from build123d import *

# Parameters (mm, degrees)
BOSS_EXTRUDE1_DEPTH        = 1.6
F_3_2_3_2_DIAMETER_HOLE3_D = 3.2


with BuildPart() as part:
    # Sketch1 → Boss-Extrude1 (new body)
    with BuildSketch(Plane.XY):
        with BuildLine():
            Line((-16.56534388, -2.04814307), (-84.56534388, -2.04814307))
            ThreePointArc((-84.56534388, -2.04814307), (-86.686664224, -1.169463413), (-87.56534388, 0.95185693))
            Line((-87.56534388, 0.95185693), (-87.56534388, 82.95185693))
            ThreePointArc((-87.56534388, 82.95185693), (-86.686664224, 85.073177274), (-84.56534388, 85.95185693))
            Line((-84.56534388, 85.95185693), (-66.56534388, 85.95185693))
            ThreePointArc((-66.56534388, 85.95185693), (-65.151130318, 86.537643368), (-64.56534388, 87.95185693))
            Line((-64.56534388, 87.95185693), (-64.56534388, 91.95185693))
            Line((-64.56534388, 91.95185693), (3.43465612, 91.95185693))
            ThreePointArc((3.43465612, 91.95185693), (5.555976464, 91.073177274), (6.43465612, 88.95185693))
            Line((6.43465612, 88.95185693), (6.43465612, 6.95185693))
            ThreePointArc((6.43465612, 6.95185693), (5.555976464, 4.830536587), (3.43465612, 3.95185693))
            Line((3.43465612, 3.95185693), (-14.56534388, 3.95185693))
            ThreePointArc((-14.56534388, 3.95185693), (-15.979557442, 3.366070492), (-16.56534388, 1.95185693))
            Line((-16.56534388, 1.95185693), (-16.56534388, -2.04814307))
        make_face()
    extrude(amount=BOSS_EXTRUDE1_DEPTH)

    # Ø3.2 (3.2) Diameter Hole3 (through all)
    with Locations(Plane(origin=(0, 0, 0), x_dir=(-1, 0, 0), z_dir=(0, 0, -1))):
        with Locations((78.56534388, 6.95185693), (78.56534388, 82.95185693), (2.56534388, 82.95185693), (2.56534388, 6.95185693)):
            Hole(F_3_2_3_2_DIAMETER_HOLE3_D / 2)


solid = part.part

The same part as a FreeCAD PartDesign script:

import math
import FreeCAD as App
import Part
import Sketcher
from FreeCAD import Vector
Q = App.Units.Quantity

doc = App.newDocument("Part")
params = doc.addObject("Spreadsheet::Sheet", "Params")
for row, (alias, value) in enumerate([
    ("sketch1_radius", "2 mm"),
    ("sketch1_radius2", "3 mm"),
    ("sketch1_width", "68 mm"),
    ("sketch1_width2", "18 mm"),
    ("sketch1_height", "4 mm"),
    ("pad1_length", "1.6 mm"),
    ("sketch2_diameter", "3.2 mm"),
    ("hole_diameter", "3.2 mm"),
], start=1):
    params.set(f"A{row}", alias)
    params.set(f"B{row}", "=" + value)
    params.setAlias(f"B{row}", alias)

body = doc.addObject("PartDesign::Body", "Body")

sketch1 = body.newObject("Sketcher::SketchObject", "Sketch")
sketch1.AttachmentSupport = (doc.getObject("XY_Plane"), [""])
sketch1.MapMode = "FlatFace"
sketch1.addGeometry([
    Part.LineSegment(Vector(-84.6, -2, 0), Vector(-16.6, -2, 0)),
    Part.LineSegment(Vector(-16.6, -2, 0), Vector(-16.6, 2, 0)),
    Part.ArcOfCircle(Part.Circle(Vector(-14.6, 2, 0), Vector(0, 0, 1), 2), math.radians(90), math.radians(180)),
    Part.LineSegment(Vector(-14.6, 4, 0), Vector(3.4, 4, 0)),
    Part.ArcOfCircle(Part.Circle(Vector(3.4, 7, 0), Vector(0, 0, 1), 3), math.radians(-90), math.radians(0)),
    Part.LineSegment(Vector(6.4, 7, 0), Vector(6.4, 89, 0)),
    Part.ArcOfCircle(Part.Circle(Vector(3.4, 89, 0), Vector(0, 0, 1), 3), math.radians(0), math.radians(90)),
    Part.LineSegment(Vector(3.4, 92, 0), Vector(-64.6, 92, 0)),
    Part.LineSegment(Vector(-64.6, 92, 0), Vector(-64.6, 88, 0)),
    Part.ArcOfCircle(Part.Circle(Vector(-66.6, 88, 0), Vector(0, 0, 1), 2), math.radians(-90), math.radians(0)),
    Part.LineSegment(Vector(-66.6, 86, 0), Vector(-84.6, 86, 0)),
    Part.ArcOfCircle(Part.Circle(Vector(-84.6, 83, 0), Vector(0, 0, 1), 3), math.radians(90), math.radians(180)),
    Part.LineSegment(Vector(-87.6, 83, 0), Vector(-87.6, 1, 0)),
    Part.ArcOfCircle(Part.Circle(Vector(-84.6, 1, 0), Vector(0, 0, 1), 3), math.radians(180), math.radians(270)),
], False)
sketch1.addConstraint([
    Sketcher.Constraint("Coincident", 0, 2, 1, 1),
    Sketcher.Constraint("Tangent", 1, 2, 2, 2),
    Sketcher.Constraint("Tangent", 2, 1, 3, 1),
    Sketcher.Constraint("Tangent", 3, 2, 4, 1),
    Sketcher.Constraint("Tangent", 4, 2, 5, 1),
    Sketcher.Constraint("Tangent", 5, 2, 6, 1),
    Sketcher.Constraint("Tangent", 6, 2, 7, 1),
    Sketcher.Constraint("Coincident", 7, 2, 8, 1),
    Sketcher.Constraint("Tangent", 8, 2, 9, 2),
    Sketcher.Constraint("Tangent", 9, 1, 10, 1),
    Sketcher.Constraint("Tangent", 10, 2, 11, 1),
    Sketcher.Constraint("Tangent", 11, 2, 12, 1),
    Sketcher.Constraint("Tangent", 12, 2, 13, 1),
    Sketcher.Constraint("Tangent", 13, 2, 0, 1),
    Sketcher.Constraint("Horizontal", 0),
    Sketcher.Constraint("Vertical", 1),
    Sketcher.Constraint("Horizontal", 3),
    Sketcher.Constraint("Vertical", 5),
    Sketcher.Constraint("Horizontal", 7),
    Sketcher.Constraint("Vertical", 8),
    Sketcher.Constraint("Horizontal", 10),
    Sketcher.Constraint("Vertical", 12),
    Sketcher.Constraint("Equal", 4, 6),
    Sketcher.Constraint("Equal", 2, 9),
    Sketcher.Constraint("Equal", 6, 11),
    Sketcher.Constraint("Equal", 11, 13),
    Sketcher.Constraint("Equal", 0, 7),
    Sketcher.Constraint("Equal", 1, 8),
    Sketcher.Constraint("Radius", 2, Q("2 mm")),
    Sketcher.Constraint("Radius", 4, Q("3 mm")),
    Sketcher.Constraint("DistanceX", 0, 1, 0, 2, Q("68 mm")),
    Sketcher.Constraint("DistanceX", 3, 1, 3, 2, Q("18 mm")),
    Sketcher.Constraint("DistanceY", 1, 1, 1, 2, Q("4 mm")),
    Sketcher.Constraint("DistanceY", 5, 1, 5, 2, Q("82 mm")),
    Sketcher.Constraint("DistanceX", 2, 3, -1, 1, Q("14.565344 mm")),
    Sketcher.Constraint("DistanceY", -1, 1, 2, 3, Q("1.951857 mm")),
])
sketch1.setExpression("Constraints[28]", "Params.sketch1_radius")
sketch1.setExpression("Constraints[29]", "Params.sketch1_radius2")
sketch1.setExpression("Constraints[30]", "Params.sketch1_width")
sketch1.setExpression("Constraints[31]", "Params.sketch1_width2")
sketch1.setExpression("Constraints[32]", "Params.sketch1_height")
pad1 = body.newObject("PartDesign::Pad", "Pad")
pad1.Profile = sketch1
pad1.setExpression("Length", "Params.pad1_length")

sketch2 = body.newObject("Sketcher::SketchObject", "Sketch001")
sketch2.AttachmentSupport = (doc.getObject("XY_Plane"), [""])
sketch2.MapMode = "FlatFace"
sketch2.addGeometry([
    Part.Circle(Vector(-78.6, 7, 0), Vector(0, 0, 1), 1.6),
    Part.Circle(Vector(-78.6, 83, 0), Vector(0, 0, 1), 1.6),
    Part.Circle(Vector(-2.6, 83, 0), Vector(0, 0, 1), 1.6),
    Part.Circle(Vector(-2.6, 7, 0), Vector(0, 0, 1), 1.6),
], False)
sketch2.addConstraint([
    Sketcher.Constraint("Equal", 0, 1),
    Sketcher.Constraint("Equal", 1, 2),
    Sketcher.Constraint("Equal", 2, 3),
    Sketcher.Constraint("Horizontal", 1, 3, 2, 3),
    Sketcher.Constraint("Horizontal", 0, 3, 3, 3),
    Sketcher.Constraint("Vertical", 0, 3, 1, 3),
    Sketcher.Constraint("Vertical", 2, 3, 3, 3),
    Sketcher.Constraint("Diameter", 0, Q("3.2 mm")),
    Sketcher.Constraint("DistanceY", 0, 3, 1, 3, Q("76 mm")),
    Sketcher.Constraint("DistanceX", 1, 3, 2, 3, Q("76 mm")),
    Sketcher.Constraint("DistanceX", 0, 3, -1, 1, Q("78.565344 mm")),
    Sketcher.Constraint("DistanceY", -1, 1, 0, 3, Q("6.951857 mm")),
])
sketch2.setExpression("Constraints[7]", "Params.sketch2_diameter")
doc.recompute()
hole = body.newObject("PartDesign::Hole", "Hole")
hole.Profile = sketch2
hole.ThreadType = "None"
hole.setExpression("Diameter", "Params.hole_diameter")
hole.DepthType = "ThroughAll"
hole.Reversed = True

doc.recompute()
